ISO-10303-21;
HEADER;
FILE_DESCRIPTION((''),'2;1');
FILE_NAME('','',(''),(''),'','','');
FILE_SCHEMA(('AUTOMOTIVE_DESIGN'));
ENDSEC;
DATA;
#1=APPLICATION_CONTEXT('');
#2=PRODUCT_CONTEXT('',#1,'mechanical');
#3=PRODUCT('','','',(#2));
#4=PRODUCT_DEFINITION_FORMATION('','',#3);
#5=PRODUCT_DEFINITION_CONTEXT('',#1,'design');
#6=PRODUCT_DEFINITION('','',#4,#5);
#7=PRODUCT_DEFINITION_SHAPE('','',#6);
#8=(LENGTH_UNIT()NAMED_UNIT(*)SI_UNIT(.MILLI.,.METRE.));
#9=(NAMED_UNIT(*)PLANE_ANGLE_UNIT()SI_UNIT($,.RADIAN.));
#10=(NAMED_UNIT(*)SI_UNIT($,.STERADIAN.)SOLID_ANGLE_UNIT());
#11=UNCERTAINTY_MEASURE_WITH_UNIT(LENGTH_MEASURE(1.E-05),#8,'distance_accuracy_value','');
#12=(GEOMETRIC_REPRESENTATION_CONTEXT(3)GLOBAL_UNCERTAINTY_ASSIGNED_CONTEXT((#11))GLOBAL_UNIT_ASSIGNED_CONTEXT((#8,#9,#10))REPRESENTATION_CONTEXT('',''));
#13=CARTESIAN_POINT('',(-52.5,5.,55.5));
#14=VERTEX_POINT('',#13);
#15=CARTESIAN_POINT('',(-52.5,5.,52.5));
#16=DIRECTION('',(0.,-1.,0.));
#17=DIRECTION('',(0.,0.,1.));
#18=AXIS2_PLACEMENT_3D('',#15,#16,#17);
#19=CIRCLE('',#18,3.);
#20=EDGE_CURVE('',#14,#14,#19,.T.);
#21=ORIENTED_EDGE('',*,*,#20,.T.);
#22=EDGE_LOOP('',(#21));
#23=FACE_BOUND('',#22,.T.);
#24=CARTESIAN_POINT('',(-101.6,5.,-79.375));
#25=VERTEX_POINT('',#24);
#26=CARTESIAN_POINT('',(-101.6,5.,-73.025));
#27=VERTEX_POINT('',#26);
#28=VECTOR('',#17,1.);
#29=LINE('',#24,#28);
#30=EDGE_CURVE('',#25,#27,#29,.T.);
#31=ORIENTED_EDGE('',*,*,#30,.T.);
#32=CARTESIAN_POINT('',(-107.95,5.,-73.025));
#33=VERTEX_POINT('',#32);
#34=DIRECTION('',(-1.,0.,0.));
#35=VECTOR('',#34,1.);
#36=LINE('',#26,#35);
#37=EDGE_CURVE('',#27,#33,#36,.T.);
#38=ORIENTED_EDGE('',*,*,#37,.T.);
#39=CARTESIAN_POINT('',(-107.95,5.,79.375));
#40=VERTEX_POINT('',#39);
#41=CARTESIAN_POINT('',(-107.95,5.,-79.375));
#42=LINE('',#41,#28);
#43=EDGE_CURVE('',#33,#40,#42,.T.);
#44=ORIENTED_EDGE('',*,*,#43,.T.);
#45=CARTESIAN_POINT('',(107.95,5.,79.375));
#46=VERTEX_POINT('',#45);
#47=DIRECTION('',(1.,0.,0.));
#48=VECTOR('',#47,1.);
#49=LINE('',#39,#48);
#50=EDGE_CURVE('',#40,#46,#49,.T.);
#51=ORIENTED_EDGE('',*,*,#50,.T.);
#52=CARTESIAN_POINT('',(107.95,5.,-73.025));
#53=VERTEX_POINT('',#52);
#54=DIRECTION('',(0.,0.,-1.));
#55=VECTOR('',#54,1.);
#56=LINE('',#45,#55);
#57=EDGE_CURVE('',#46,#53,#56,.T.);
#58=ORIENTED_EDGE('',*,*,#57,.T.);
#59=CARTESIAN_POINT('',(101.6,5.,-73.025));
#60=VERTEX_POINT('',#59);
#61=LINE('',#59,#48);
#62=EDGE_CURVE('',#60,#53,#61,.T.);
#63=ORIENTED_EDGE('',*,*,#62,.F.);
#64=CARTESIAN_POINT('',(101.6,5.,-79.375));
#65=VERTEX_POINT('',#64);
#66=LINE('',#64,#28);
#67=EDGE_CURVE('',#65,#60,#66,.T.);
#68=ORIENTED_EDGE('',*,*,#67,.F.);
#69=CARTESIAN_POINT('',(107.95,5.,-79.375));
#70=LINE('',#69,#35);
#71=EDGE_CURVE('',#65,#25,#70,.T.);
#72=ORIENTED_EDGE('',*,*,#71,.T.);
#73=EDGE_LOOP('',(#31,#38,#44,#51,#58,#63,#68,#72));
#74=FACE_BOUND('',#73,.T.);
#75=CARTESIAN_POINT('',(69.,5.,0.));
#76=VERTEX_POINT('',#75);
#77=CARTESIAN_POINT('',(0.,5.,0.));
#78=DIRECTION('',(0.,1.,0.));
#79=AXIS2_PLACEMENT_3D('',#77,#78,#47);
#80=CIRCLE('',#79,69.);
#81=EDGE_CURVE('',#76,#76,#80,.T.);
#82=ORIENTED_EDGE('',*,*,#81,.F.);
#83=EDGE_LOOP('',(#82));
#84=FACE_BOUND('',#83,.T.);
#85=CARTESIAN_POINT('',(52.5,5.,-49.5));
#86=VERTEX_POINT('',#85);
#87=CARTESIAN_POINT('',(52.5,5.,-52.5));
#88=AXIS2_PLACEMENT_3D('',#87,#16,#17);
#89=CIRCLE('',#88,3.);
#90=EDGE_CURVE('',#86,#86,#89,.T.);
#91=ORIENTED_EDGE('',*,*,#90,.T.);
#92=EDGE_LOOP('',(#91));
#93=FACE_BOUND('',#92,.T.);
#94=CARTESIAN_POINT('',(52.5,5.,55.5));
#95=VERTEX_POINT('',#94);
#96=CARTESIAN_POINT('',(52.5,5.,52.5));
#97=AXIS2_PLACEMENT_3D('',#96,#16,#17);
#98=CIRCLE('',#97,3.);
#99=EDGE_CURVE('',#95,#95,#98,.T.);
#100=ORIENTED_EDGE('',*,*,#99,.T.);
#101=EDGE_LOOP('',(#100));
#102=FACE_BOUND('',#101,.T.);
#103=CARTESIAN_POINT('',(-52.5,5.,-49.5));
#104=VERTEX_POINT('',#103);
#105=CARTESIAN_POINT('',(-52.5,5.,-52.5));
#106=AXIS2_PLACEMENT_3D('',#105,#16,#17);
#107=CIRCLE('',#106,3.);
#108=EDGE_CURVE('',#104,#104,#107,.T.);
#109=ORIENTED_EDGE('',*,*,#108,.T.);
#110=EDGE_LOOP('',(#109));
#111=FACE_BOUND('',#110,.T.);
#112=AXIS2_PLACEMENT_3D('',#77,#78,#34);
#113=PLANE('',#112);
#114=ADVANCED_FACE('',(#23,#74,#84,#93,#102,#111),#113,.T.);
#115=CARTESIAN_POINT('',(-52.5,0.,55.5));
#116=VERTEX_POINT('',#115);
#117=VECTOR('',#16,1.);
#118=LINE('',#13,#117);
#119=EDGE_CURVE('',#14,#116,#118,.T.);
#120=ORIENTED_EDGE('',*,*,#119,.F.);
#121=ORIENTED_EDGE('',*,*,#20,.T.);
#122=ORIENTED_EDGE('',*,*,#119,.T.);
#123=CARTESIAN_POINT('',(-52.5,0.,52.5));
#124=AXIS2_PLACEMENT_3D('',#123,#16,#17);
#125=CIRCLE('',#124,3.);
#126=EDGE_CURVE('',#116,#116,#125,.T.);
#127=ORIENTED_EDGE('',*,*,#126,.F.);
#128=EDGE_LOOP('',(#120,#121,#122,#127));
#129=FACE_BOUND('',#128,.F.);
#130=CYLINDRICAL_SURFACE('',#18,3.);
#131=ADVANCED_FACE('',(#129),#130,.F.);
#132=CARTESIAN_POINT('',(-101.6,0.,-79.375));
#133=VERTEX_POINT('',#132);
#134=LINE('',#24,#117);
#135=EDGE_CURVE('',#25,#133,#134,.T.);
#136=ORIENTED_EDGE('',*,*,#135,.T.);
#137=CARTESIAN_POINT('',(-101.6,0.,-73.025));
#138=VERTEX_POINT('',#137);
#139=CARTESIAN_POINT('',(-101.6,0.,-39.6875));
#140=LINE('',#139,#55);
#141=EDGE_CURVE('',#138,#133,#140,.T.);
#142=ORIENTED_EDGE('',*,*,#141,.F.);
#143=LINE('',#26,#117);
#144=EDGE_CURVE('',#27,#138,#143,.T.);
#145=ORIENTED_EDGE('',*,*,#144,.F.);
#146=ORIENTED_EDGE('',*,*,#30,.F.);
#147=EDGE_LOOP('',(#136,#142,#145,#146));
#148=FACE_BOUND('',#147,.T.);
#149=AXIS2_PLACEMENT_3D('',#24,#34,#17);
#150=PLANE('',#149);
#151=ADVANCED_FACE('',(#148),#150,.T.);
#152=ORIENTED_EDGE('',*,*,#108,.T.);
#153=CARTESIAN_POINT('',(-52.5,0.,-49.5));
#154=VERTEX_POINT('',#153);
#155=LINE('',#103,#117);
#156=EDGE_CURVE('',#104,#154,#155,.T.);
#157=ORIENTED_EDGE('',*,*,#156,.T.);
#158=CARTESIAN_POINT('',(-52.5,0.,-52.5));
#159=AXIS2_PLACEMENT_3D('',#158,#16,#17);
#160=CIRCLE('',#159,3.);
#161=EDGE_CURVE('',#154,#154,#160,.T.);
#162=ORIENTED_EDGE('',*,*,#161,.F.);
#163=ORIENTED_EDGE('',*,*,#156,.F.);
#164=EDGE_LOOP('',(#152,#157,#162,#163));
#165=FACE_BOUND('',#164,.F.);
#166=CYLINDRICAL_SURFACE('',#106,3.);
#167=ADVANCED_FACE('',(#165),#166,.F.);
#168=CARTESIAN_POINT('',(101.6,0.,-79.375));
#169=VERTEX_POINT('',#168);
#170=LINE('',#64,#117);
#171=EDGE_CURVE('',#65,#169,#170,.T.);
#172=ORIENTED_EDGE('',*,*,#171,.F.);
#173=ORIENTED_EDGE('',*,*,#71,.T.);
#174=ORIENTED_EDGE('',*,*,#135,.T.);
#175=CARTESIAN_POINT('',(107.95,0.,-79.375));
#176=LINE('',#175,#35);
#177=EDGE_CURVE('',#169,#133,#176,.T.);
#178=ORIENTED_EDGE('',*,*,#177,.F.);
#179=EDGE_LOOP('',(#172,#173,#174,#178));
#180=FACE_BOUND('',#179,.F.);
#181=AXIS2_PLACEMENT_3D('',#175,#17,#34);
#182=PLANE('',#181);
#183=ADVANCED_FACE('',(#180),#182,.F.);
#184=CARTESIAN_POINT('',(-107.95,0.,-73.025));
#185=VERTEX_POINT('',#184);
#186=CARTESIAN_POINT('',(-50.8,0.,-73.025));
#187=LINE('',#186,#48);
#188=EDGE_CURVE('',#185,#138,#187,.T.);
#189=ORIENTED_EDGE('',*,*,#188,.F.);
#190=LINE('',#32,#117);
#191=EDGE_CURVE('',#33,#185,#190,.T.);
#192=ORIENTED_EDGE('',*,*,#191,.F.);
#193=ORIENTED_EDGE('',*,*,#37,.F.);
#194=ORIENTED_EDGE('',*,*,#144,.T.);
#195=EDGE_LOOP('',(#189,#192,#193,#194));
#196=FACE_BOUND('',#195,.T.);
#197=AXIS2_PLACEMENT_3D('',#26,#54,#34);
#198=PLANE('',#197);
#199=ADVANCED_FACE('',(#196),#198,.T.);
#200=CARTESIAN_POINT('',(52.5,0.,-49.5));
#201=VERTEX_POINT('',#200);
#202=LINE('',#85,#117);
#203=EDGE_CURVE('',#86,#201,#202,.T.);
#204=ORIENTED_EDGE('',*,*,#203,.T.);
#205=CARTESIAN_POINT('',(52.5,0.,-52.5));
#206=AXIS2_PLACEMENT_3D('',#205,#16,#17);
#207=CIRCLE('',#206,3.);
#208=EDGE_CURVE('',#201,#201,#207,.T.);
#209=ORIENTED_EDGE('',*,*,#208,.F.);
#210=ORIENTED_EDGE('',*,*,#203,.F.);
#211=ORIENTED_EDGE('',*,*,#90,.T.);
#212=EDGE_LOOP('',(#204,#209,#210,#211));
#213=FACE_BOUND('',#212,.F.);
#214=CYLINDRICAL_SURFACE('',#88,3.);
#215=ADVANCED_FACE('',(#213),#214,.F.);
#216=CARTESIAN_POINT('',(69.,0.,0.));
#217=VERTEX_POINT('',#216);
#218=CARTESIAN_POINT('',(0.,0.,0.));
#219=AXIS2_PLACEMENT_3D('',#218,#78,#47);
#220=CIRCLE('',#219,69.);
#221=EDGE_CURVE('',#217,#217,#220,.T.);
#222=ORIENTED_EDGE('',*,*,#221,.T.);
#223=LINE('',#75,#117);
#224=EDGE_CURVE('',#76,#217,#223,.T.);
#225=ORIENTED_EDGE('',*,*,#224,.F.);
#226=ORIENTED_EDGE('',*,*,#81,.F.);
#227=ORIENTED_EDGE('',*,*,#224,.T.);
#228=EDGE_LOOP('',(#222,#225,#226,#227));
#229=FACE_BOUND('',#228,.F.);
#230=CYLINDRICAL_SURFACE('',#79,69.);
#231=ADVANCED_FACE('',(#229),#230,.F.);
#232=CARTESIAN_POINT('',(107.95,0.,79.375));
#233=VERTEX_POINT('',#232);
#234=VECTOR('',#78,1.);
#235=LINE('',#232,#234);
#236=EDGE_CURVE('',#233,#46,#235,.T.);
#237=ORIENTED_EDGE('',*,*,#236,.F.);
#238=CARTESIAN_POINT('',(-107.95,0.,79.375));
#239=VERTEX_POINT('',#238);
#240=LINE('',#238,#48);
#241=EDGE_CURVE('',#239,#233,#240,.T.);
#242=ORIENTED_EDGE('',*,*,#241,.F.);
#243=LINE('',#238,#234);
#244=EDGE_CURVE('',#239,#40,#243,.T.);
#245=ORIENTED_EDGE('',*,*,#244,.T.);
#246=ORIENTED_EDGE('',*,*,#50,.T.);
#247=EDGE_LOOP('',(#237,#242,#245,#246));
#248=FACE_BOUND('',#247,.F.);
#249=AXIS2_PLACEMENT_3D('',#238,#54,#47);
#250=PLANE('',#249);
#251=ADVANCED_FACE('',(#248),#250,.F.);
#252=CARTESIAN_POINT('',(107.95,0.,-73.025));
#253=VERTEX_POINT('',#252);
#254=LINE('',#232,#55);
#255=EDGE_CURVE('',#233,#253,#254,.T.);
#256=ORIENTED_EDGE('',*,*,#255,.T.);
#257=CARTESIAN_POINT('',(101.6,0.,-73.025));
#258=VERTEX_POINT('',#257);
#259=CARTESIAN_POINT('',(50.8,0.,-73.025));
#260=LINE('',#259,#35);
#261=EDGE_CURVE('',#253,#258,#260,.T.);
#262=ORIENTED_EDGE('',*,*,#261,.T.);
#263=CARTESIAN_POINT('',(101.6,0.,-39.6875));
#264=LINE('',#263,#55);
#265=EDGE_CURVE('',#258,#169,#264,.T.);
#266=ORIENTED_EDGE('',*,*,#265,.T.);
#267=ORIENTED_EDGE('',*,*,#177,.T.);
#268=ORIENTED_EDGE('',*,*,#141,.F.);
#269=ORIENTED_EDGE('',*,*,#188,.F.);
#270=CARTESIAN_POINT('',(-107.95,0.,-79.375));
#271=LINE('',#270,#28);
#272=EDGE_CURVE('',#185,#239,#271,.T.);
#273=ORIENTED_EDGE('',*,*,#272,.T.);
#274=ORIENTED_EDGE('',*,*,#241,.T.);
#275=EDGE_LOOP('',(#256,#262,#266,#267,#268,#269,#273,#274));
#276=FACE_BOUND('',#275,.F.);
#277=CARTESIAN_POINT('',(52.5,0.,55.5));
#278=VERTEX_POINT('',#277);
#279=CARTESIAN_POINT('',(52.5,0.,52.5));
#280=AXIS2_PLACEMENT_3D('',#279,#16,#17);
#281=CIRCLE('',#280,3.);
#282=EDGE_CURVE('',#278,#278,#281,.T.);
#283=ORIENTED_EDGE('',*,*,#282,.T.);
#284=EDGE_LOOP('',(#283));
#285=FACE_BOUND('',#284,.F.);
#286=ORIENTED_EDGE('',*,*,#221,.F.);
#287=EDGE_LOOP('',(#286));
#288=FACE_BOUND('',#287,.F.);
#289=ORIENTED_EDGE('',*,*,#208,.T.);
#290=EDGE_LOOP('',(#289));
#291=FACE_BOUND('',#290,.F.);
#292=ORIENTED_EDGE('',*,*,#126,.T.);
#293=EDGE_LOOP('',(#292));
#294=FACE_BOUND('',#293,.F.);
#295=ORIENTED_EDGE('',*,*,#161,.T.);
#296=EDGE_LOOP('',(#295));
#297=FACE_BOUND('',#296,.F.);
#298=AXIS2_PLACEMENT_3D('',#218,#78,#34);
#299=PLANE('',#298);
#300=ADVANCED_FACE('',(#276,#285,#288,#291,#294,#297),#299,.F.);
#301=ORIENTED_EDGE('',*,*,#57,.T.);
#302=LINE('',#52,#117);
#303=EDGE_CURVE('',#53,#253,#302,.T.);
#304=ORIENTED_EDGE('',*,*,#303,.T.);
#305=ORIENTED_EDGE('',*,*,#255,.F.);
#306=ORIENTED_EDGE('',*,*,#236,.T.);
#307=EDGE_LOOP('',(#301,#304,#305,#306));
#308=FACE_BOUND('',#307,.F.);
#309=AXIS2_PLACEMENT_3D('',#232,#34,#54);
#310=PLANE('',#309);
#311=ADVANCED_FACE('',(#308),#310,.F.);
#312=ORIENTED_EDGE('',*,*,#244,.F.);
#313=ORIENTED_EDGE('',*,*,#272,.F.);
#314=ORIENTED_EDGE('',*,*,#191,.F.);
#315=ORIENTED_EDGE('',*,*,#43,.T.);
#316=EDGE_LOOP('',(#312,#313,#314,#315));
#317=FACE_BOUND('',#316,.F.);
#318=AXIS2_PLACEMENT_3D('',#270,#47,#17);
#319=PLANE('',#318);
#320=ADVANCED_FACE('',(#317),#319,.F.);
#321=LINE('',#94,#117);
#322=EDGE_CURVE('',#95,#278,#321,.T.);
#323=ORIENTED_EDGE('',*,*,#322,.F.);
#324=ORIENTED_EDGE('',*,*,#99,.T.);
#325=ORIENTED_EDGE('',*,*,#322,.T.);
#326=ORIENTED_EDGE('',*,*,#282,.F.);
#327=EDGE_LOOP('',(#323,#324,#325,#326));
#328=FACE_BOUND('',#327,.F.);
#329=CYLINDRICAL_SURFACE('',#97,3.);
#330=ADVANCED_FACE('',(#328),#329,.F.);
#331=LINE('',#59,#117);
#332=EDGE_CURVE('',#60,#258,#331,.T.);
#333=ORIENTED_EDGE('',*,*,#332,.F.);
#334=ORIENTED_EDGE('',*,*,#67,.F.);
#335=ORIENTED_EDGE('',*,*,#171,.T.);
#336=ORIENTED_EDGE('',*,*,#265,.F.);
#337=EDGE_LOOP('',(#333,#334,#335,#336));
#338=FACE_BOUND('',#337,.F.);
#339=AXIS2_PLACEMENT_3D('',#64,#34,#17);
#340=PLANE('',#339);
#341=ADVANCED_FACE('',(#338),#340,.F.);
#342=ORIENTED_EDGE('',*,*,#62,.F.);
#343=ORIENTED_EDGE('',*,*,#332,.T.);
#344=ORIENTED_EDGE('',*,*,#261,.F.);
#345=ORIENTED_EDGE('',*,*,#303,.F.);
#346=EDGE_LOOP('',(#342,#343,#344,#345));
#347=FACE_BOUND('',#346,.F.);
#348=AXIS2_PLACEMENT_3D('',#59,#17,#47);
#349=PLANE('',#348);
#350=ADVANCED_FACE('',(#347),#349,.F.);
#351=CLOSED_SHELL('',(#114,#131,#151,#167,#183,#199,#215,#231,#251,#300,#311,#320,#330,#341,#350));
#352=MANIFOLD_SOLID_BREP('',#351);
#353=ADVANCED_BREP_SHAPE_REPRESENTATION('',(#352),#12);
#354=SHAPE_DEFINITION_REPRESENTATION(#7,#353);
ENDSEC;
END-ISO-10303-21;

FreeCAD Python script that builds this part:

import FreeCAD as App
import Part
import Sketcher
Q = App.Units.Quantity

doc = App.newDocument("Part")
body = doc.addObject("PartDesign::Body", "Body")

sketch1 = body.newObject("Sketcher::SketchObject", "Sketch")
sketch1.AttachmentSupport = (doc.getObject("XZ_Plane"), [""])
sketch1.MapMode = "FlatFace"
sketch1.addGeometry([
    Part.LineSegment(App.Vector(-108, -79, 0), App.Vector(-108, 79, 0)),
    Part.LineSegment(App.Vector(-108, 79, 0), App.Vector(108, 79, 0)),
    Part.LineSegment(App.Vector(108, 79, 0), App.Vector(108, -79, 0)),
    Part.LineSegment(App.Vector(108, -79, 0), App.Vector(-108, -79, 0)),
], False)
sketch1.addConstraint([
    Sketcher.Constraint("Coincident", 0, 2, 1, 1),
    Sketcher.Constraint("Coincident", 1, 2, 2, 1),
    Sketcher.Constraint("Coincident", 2, 2, 3, 1),
    Sketcher.Constraint("Coincident", 3, 2, 0, 1),
    Sketcher.Constraint("Vertical", 0),
    Sketcher.Constraint("Horizontal", 1),
    Sketcher.Constraint("Vertical", 2),
    Sketcher.Constraint("Horizontal", 3),
    Sketcher.Constraint("Symmetric", 0, 2, 2, 2, -1, 1),
    Sketcher.Constraint("DistanceX", 1, 1, 1, 2, Q("8.5 in")),
    Sketcher.Constraint("DistanceY", 0, 1, 0, 2, Q("6.25 in")),
])
pad1 = body.newObject("PartDesign::Pad", "Pad")
pad1.Profile = sketch1
pad1.Length = 5
pad1.Reversed = True

sketch2 = body.newObject("Sketcher::SketchObject", "Sketch001")
sketch2.AttachmentSupport = (doc.getObject("XZ_Plane"), [""])
sketch2.MapMode = "FlatFace"
sketch2.AttachmentOffset = App.Placement(App.Vector(0, 0, -5), App.Rotation())
sketch2.addGeometry([
    Part.LineSegment(App.Vector(108, -73, 0), App.Vector(108, -79, 0)),
    Part.LineSegment(App.Vector(108, -79, 0), App.Vector(102, -79, 0)),
    Part.LineSegment(App.Vector(102, -79, 0), App.Vector(102, -73, 0)),
    Part.LineSegment(App.Vector(102, -73, 0), App.Vector(108, -73, 0)),
    Part.LineSegment(App.Vector(-102, -73, 0), App.Vector(-102, -79, 0)),
    Part.LineSegment(App.Vector(-102, -79, 0), App.Vector(-108, -79, 0)),
    Part.LineSegment(App.Vector(-108, -79, 0), App.Vector(-108, -73, 0)),
    Part.LineSegment(App.Vector(-108, -73, 0), App.Vector(-102, -73, 0)),
], False)
sketch2.addConstraint([
    Sketcher.Constraint("Coincident", 0, 2, 1, 1),
    Sketcher.Constraint("Coincident", 1, 2, 2, 1),
    Sketcher.Constraint("Coincident", 2, 2, 3, 1),
    Sketcher.Constraint("Coincident", 3, 2, 0, 1),
    Sketcher.Constraint("Coincident", 4, 2, 5, 1),
    Sketcher.Constraint("Coincident", 5, 2, 6, 1),
    Sketcher.Constraint("Coincident", 6, 2, 7, 1),
    Sketcher.Constraint("Coincident", 7, 2, 4, 1),
    Sketcher.Constraint("Vertical", 0),
    Sketcher.Constraint("Horizontal", 1),
    Sketcher.Constraint("Vertical", 2),
    Sketcher.Constraint("Horizontal", 3),
    Sketcher.Constraint("Vertical", 4),
    Sketcher.Constraint("Horizontal", 5),
    Sketcher.Constraint("Vertical", 6),
    Sketcher.Constraint("Horizontal", 7),
    Sketcher.Constraint("Symmetric", 1, 2, 4, 2, -2),
    Sketcher.Constraint("Symmetric", 3, 2, 6, 2, -2),
    Sketcher.Constraint("Equal", 7, 0),
    Sketcher.Constraint("DistanceX", 1, 2, 1, 1, Q("0.25 in")),
    Sketcher.Constraint("DistanceX", -1, 1, 1, 2, Q("4 in")),
    Sketcher.Constraint("DistanceY", 0, 2, -1, 1, Q("3.125 in")),
])
pocket1 = body.newObject("PartDesign::Pocket", "Pocket")
pocket1.Profile = sketch2
pocket1.Length = 5
pocket1.Reversed = True

sketch3 = body.newObject("Sketcher::SketchObject", "Sketch002")
sketch3.AttachmentSupport = (doc.getObject("XZ_Plane"), [""])
sketch3.MapMode = "FlatFace"
sketch3.AttachmentOffset = App.Placement(App.Vector(0, 0, -5), App.Rotation())
sketch3.addGeometry([
    Part.Circle(App.Vector(-52.5, -52.5, 0), App.Vector(0, 0, 1), 3),
    Part.Circle(App.Vector(-52.5, 52.5, 0), App.Vector(0, 0, 1), 3),
    Part.Circle(App.Vector(52.5, 52.5, 0), App.Vector(0, 0, 1), 3),
    Part.Circle(App.Vector(52.5, -52.5, 0), App.Vector(0, 0, 1), 3),
], False)
sketch3.addConstraint([
    Sketcher.Constraint("Equal", 0, 1),
    Sketcher.Constraint("Equal", 1, 2),
    Sketcher.Constraint("Equal", 2, 3),
    Sketcher.Constraint("Symmetric", 0, 3, 2, 3, -1, 1),
    Sketcher.Constraint("Symmetric", 1, 3, 3, 3, -1, 1),
    Sketcher.Constraint("Symmetric", 1, 3, 2, 3, -2),
    Sketcher.Constraint("Diameter", 0, 6.0),
    Sketcher.Constraint("DistanceX", 0, 3, -1, 1, 52.5),
    Sketcher.Constraint("DistanceY", 0, 3, -1, 1, 52.5),
])
doc.recompute()
hole = body.newObject("PartDesign::Hole", "Hole")
hole.Profile = sketch3
hole.ThreadType = "None"
hole.Diameter = 6
hole.DepthType = "Dimension"
hole.Depth = Q("0.432 in")
hole.DrillPoint = "Angled"
hole.DrillPointAngle = 118
hole.Reversed = True

sketch4 = body.newObject("Sketcher::SketchObject", "Sketch003")
sketch4.AttachmentSupport = (doc.getObject("XZ_Plane"), [""])
sketch4.MapMode = "FlatFace"
sketch4.AttachmentOffset = App.Placement(App.Vector(0, 0, -5), App.Rotation())
sketch4.addGeometry(Part.Circle(App.Vector(0, 0, 0), App.Vector(0, 0, 1), 69), False)
sketch4.addConstraint([
    Sketcher.Constraint("Coincident", 0, 3, -1, 1),
    Sketcher.Constraint("Diameter", 0, 138.0),
])
pocket2 = body.newObject("PartDesign::Pocket", "Pocket001")
pocket2.Profile = sketch4
pocket2.Type = "UpToFirst"
pocket2.Reversed = True

doc.recompute()
